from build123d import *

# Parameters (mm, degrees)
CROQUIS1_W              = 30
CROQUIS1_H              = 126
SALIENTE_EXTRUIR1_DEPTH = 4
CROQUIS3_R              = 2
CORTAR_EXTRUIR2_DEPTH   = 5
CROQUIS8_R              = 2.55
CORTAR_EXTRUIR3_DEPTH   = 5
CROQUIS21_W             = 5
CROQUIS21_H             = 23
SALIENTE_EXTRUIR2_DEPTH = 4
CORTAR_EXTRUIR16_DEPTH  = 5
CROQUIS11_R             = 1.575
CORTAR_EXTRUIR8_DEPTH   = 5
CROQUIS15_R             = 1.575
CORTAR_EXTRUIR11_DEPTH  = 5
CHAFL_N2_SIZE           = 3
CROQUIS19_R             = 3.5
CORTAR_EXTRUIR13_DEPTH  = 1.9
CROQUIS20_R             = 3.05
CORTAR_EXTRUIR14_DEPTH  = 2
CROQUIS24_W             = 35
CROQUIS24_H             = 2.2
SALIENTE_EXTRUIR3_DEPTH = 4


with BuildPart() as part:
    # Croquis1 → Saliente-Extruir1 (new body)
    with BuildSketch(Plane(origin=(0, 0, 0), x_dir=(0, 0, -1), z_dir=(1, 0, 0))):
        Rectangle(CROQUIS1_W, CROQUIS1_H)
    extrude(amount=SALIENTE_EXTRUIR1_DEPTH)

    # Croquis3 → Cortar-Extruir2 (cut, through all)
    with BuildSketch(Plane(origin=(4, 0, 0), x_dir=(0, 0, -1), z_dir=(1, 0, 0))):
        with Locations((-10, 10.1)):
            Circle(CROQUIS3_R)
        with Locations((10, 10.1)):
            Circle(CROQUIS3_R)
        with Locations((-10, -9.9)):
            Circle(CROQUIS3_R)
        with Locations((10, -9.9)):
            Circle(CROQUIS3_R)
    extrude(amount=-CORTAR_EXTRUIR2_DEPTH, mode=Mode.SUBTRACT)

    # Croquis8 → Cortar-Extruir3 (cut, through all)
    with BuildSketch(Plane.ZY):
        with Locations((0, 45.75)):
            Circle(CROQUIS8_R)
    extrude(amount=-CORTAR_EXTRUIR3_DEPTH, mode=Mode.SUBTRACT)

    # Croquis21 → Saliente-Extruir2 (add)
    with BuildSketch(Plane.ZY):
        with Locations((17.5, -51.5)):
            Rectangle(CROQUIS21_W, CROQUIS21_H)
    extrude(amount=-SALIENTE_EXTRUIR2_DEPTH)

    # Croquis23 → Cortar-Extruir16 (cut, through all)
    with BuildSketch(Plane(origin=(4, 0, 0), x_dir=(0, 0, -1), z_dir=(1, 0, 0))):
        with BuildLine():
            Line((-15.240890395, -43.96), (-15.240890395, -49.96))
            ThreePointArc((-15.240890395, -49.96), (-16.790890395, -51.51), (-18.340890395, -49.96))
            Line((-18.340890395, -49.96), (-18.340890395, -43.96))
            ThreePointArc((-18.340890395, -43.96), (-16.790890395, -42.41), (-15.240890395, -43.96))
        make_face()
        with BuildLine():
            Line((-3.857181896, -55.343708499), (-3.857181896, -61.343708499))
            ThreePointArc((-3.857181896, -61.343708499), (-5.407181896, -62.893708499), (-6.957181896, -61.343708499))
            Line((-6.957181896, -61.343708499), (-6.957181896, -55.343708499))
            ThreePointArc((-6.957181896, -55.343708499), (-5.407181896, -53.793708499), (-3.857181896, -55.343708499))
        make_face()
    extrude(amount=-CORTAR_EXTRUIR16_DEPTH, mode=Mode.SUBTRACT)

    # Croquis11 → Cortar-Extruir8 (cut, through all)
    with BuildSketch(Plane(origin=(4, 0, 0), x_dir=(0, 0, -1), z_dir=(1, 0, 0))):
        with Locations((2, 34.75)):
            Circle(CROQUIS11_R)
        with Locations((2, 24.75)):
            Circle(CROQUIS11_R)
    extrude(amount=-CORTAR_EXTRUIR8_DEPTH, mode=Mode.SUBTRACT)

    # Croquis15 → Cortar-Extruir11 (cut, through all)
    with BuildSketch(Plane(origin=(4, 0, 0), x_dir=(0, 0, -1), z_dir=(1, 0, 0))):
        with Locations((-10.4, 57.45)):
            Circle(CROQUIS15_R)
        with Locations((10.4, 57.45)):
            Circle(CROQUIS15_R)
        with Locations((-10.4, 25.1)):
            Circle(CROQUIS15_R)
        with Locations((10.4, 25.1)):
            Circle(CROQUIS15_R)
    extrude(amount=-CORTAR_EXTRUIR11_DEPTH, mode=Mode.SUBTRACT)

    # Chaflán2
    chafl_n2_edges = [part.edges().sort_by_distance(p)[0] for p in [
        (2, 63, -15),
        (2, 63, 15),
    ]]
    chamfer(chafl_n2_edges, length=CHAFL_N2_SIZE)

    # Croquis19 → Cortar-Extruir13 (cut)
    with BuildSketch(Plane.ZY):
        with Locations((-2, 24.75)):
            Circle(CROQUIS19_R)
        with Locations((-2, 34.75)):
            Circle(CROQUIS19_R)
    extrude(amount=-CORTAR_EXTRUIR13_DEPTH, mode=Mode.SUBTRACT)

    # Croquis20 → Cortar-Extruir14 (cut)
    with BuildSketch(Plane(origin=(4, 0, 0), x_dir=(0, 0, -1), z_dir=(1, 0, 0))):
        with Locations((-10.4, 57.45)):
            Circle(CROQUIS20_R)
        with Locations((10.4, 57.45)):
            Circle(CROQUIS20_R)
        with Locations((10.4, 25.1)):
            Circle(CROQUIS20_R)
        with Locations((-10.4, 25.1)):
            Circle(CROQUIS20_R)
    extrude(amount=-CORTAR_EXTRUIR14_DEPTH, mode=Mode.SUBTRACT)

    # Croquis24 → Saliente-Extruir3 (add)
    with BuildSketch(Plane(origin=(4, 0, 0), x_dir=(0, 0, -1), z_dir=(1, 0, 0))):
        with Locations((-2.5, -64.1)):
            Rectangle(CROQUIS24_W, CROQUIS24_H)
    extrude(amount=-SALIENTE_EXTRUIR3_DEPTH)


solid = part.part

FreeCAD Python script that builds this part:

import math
import FreeCAD as App
import Part
import Sketcher

V = App.Vector


def edges_at(feature, points):
    """Names of the edges that pass closest to the given points."""
    edges = feature.Shape.Edges
    near = lambda p: min(range(len(edges)), key=lambda i: edges[i].distToShape(Part.Vertex(*p))[0])
    return sorted({f"Edge{near(p) + 1}" for p in points})

doc = App.newDocument("Part")
params = doc.addObject("Spreadsheet::Sheet", "Params")
for row, (alias, value) in enumerate([
    ("sketch1_width", "126 mm"),
    ("sketch1_height", "30 mm"),
    ("pad1_length", "4 mm"),
    ("sketch2_diameter", "4 mm"),
    ("sketch3_diameter", "5.1 mm"),
    ("sketch4_width", "23 mm"),
    ("sketch4_height", "5 mm"),
    ("pad2_length", "4 mm"),
    ("sketch5_width", "6 mm"),
    ("sketch5_radius", "1.55 mm"),
    ("sketch6_diameter", "3.15 mm"),
    ("sketch7_diameter", "3.15 mm"),
    ("chamfer_size", "3 mm"),
    ("sketch8_diameter", "7 mm"),
    ("pocket6_length", "1.9 mm"),
    ("sketch9_diameter", "6.1 mm"),
    ("pocket7_length", "2 mm"),
    ("sketch10_height", "35 mm"),
    ("sketch10_width", "2.2 mm"),
    ("pad3_length", "4 mm"),
], start=1):
    params.set(f"A{row}", alias)
    params.set(f"B{row}", "=" + value)
    params.setAlias(f"B{row}", alias)

body = doc.addObject("PartDesign::Body", "Body")

sketch1 = body.newObject("Sketcher::SketchObject", "Sketch")
sketch1.AttachmentSupport = (doc.getObject("YZ_Plane"), [""])
sketch1.MapMode = "FlatFace"
sketch1.addGeometry(Part.LineSegment(V(63, 15, 0), V(-63, 15, 0)), False)
sketch1.addGeometry(Part.LineSegment(V(-63, 15, 0), V(-63, -15, 0)), False)
sketch1.addGeometry(Part.LineSegment(V(-63, -15, 0), V(63, -15, 0)), False)
sketch1.addGeometry(Part.LineSegment(V(63, -15, 0), V(63, 15, 0)), False)
sketch1.addConstraint(Sketcher.Constraint("Coincident", 0, 2, 1, 1))
sketch1.addConstraint(Sketcher.Constraint("Coincident", 1, 2, 2, 1))
sketch1.addConstraint(Sketcher.Constraint("Coincident", 2, 2, 3, 1))
sketch1.addConstraint(Sketcher.Constraint("Coincident", 3, 2, 0, 1))
sketch1.addConstraint(Sketcher.Constraint("Horizontal", 0))
sketch1.addConstraint(Sketcher.Constraint("Vertical", 1))
sketch1.addConstraint(Sketcher.Constraint("Horizontal", 2))
sketch1.addConstraint(Sketcher.Constraint("Vertical", 3))
sketch1.addConstraint(Sketcher.Constraint("Symmetric", 0, 2, 2, 2, -1, 1))
sketch1.addConstraint(Sketcher.Constraint("DistanceX", 0, 2, 0, 1, 126.0))
sketch1.addConstraint(Sketcher.Constraint("DistanceY", 1, 2, 1, 1, 30.0))
sketch1.setExpression("Constraints[9]", "Params.sketch1_width")
sketch1.setExpression("Constraints[10]", "Params.sketch1_height")
pad1 = body.newObject("PartDesign::Pad", "Pad")
pad1.Profile = sketch1
pad1.setExpression("Length", "Params.pad1_length")

sketch2 = body.newObject("Sketcher::SketchObject", "Sketch001")
sketch2.AttachmentSupport = (doc.getObject("YZ_Plane"), [""])
sketch2.MapMode = "FlatFace"
sketch2.AttachmentOffset = App.Placement(V(0, 0, 4), App.Rotation())
sketch2.addGeometry(Part.Circle(V(10.1, 10, 0), V(0, 0, 1), 2), False)
sketch2.addGeometry(Part.Circle(V(10.1, -10, 0), V(0, 0, 1), 2), False)
sketch2.addGeometry(Part.Circle(V(-9.9, 10, 0), V(0, 0, 1), 2), False)
sketch2.addGeometry(Part.Circle(V(-9.9, -10, 0), V(0, 0, 1), 2), False)
sketch2.addConstraint(Sketcher.Constraint("Equal", 0, 1))
sketch2.addConstraint(Sketcher.Constraint("Equal", 1, 2))
sketch2.addConstraint(Sketcher.Constraint("Equal", 2, 3))
sketch2.addConstraint(Sketcher.Constraint("Symmetric", 0, 3, 1, 3, -1))
sketch2.addConstraint(Sketcher.Constraint("Symmetric", 2, 3, 3, 3, -1))
sketch2.addConstraint(Sketcher.Constraint("Horizontal", 0, 3, 2, 3))
sketch2.addConstraint(Sketcher.Constraint("Diameter", 0, 4.0))
sketch2.addConstraint(Sketcher.Constraint("DistanceY", -1, 1, 0, 3, 10.0))
sketch2.addConstraint(Sketcher.Constraint("DistanceX", 2, 3, 0, 3, 20.0))
sketch2.addConstraint(Sketcher.Constraint("DistanceX", -1, 1, 0, 3, 10.1))
sketch2.setExpression("Constraints[6]", "Params.sketch2_diameter")
pocket1 = body.newObject("PartDesign::Pocket", "Pocket")
pocket1.Profile = sketch2
pocket1.Type = "ThroughAll"

sketch3 = body.newObject("Sketcher::SketchObject", "Sketch002")
sketch3.AttachmentSupport = (doc.getObject("YZ_Plane"), [""])
sketch3.MapMode = "FlatFace"
sketch3.addGeometry(Part.Circle(V(45.8, 0, 0), V(0, 0, 1), 2.5), False)
sketch3.addConstraint(Sketcher.Constraint("PointOnObject", 0, 3, -1))
sketch3.addConstraint(Sketcher.Constraint("Diameter", 0, 5.1))
sketch3.addConstraint(Sketcher.Constraint("DistanceX", -1, 1, 0, 3, 45.75))
sketch3.setExpression("Constraints[1]", "Params.sketch3_diameter")
pocket2 = body.newObject("PartDesign::Pocket", "Pocket001")
pocket2.Profile = sketch3
pocket2.Type = "ThroughAll"
pocket2.Reversed = True

sketch4 = body.newObject("Sketcher::SketchObject", "Sketch003")
sketch4.AttachmentSupport = (doc.getObject("YZ_Plane"), [""])
sketch4.MapMode = "FlatFace"
sketch4.addGeometry(Part.LineSegment(V(-40, 15, 0), V(-63, 15, 0)), False)
sketch4.addGeometry(Part.LineSegment(V(-63, 15, 0), V(-63, 20, 0)), False)
sketch4.addGeometry(Part.LineSegment(V(-63, 20, 0), V(-40, 20, 0)), False)
sketch4.addGeometry(Part.LineSegment(V(-40, 20, 0), V(-40, 15, 0)), False)
sketch4.addConstraint(Sketcher.Constraint("Coincident", 0, 2, 1, 1))
sketch4.addConstraint(Sketcher.Constraint("Coincident", 1, 2, 2, 1))
sketch4.addConstraint(Sketcher.Constraint("Coincident", 2, 2, 3, 1))
sketch4.addConstraint(Sketcher.Constraint("Coincident", 3, 2, 0, 1))
sketch4.addConstraint(Sketcher.Constraint("Horizontal", 0))
sketch4.addConstraint(Sketcher.Constraint("Vertical", 1))
sketch4.addConstraint(Sketcher.Constraint("Horizontal", 2))
sketch4.addConstraint(Sketcher.Constraint("Vertical", 3))
sketch4.addConstraint(Sketcher.Constraint("DistanceX", 0, 2, 0, 1, 23.0))
sketch4.addConstraint(Sketcher.Constraint("DistanceY", 1, 1, 1, 2, 5.0))
sketch4.addConstraint(Sketcher.Constraint("DistanceX", 0, 2, -1, 1, 63.0))
sketch4.addConstraint(Sketcher.Constraint("DistanceY", -1, 1, 0, 2, 15.0))
sketch4.setExpression("Constraints[8]", "Params.sketch4_width")
sketch4.setExpression("Constraints[9]", "Params.sketch4_height")
pad2 = body.newObject("PartDesign::Pad", "Pad001")
pad2.Profile = sketch4
pad2.setExpression("Length", "Params.pad2_length")

sketch5 = body.newObject("Sketcher::SketchObject", "Sketch004")
sketch5.AttachmentSupport = (doc.getObject("YZ_Plane"), [""])
sketch5.MapMode = "FlatFace"
sketch5.AttachmentOffset = App.Placement(V(0, 0, 4), App.Rotation())
sketch5.addGeometry(Part.LineSegment(V(-50, 15.2, 0), V(-44, 15.2, 0)), False)
sketch5.addGeometry(Part.ArcOfCircle(Part.Circle(V(-44, 16.8, 0), V(0, 0, 1), 1.6), math.radians(-90), math.radians(90)), False)
sketch5.addGeometry(Part.LineSegment(V(-44, 18.3, 0), V(-50, 18.3, 0)), False)
sketch5.addGeometry(Part.ArcOfCircle(Part.Circle(V(-50, 16.8, 0), V(0, 0, 1), 1.6), math.radians(90), math.radians(270)), False)
sketch5.addGeometry(Part.LineSegment(V(-61.3, 3.9, 0), V(-55.3, 3.9, 0)), False)
sketch5.addGeometry(Part.ArcOfCircle(Part.Circle(V(-55.3, 5.4, 0), V(0, 0, 1), 1.6), math.radians(-90), math.radians(90)), False)
sketch5.addGeometry(Part.LineSegment(V(-55.3, 7, 0), V(-61.3, 7, 0)), False)
sketch5.addGeometry(Part.ArcOfCircle(Part.Circle(V(-61.3, 5.4, 0), V(0, 0, 1), 1.6), math.radians(90), math.radians(270)), False)
sketch5.addConstraint(Sketcher.Constraint("Tangent", 0, 2, 1, 1))
sketch5.addConstraint(Sketcher.Constraint("Tangent", 1, 2, 2, 1))
sketch5.addConstraint(Sketcher.Constraint("Tangent", 2, 2, 3, 1))
sketch5.addConstraint(Sketcher.Constraint("Tangent", 3, 2, 0, 1))
sketch5.addConstraint(Sketcher.Constraint("Tangent", 4, 2, 5, 1))
sketch5.addConstraint(Sketcher.Constraint("Tangent", 5, 2, 6, 1))
sketch5.addConstraint(Sketcher.Constraint("Tangent", 6, 2, 7, 1))
sketch5.addConstraint(Sketcher.Constraint("Tangent", 7, 2, 4, 1))
sketch5.addConstraint(Sketcher.Constraint("Horizontal", 0))
sketch5.addConstraint(Sketcher.Constraint("Horizontal", 2))
sketch5.addConstraint(Sketcher.Constraint("Horizontal", 4))
sketch5.addConstraint(Sketcher.Constraint("Horizontal", 6))
sketch5.addConstraint(Sketcher.Constraint("Equal", 3, 5))
sketch5.addConstraint(Sketcher.Constraint("Equal", 2, 4))
sketch5.addConstraint(Sketcher.Constraint("DistanceX", 0, 1, 0, 2, 6.0))
sketch5.addConstraint(Sketcher.Constraint("Radius", 1, 1.55))
sketch5.addConstraint(Sketcher.Constraint("DistanceX", 1, 3, -1, 1, 43.96))
sketch5.addConstraint(Sketcher.Constraint("DistanceY", -1, 1, 1, 3, 16.79089))
sketch5.addConstraint(Sketcher.Constraint("DistanceX", 5, 3, -1, 1, 55.343708))
sketch5.addConstraint(Sketcher.Constraint("DistanceY", -1, 1, 5, 3, 5.407182))
sketch5.setExpression("Constraints[14]", "Params.sketch5_width")
sketch5.setExpression("Constraints[15]", "Params.sketch5_radius")
pocket3 = body.newObject("PartDesign::Pocket", "Pocket002")
pocket3.Profile = sketch5
pocket3.Type = "ThroughAll"

sketch6 = body.newObject("Sketcher::SketchObject", "Sketch005")
sketch6.AttachmentSupport = (doc.getObject("YZ_Plane"), [""])
sketch6.MapMode = "FlatFace"
sketch6.AttachmentOffset = App.Placement(V(0, 0, 4), App.Rotation())
sketch6.addGeometry(Part.Circle(V(34.8, -2, 0), V(0, 0, 1), 1.6), False)
sketch6.addGeometry(Part.Circle(V(24.8, -2, 0), V(0, 0, 1), 1.6), False)
sketch6.addConstraint(Sketcher.Constraint("Equal", 0, 1))
sketch6.addConstraint(Sketcher.Constraint("Horizontal", 0, 3, 1, 3))
sketch6.addConstraint(Sketcher.Constraint("Diameter", 0, 3.15))
sketch6.addConstraint(Sketcher.Constraint("DistanceY", 0, 3, -1, 1, 2.0))
sketch6.addConstraint(Sketcher.Constraint("DistanceX", 1, 3, 0, 3, 10.0))
sketch6.addConstraint(Sketcher.Constraint("DistanceX", -1, 1, 0, 3, 34.75))
sketch6.setExpression("Constraints[2]", "Params.sketch6_diameter")
pocket4 = body.newObject("PartDesign::Pocket", "Pocket003")
pocket4.Profile = sketch6
pocket4.Type = "ThroughAll"

sketch7 = body.newObject("Sketcher::SketchObject", "Sketch006")
sketch7.AttachmentSupport = (doc.getObject("YZ_Plane"), [""])
sketch7.MapMode = "FlatFace"
sketch7.AttachmentOffset = App.Placement(V(0, 0, 4), App.Rotation())
sketch7.addGeometry(Part.Circle(V(57.5, 10.4, 0), V(0, 0, 1), 1.6), False)
sketch7.addGeometry(Part.Circle(V(57.5, -10.4, 0), V(0, 0, 1), 1.6), False)
sketch7.addGeometry(Part.Circle(V(25.1, 10.4, 0), V(0, 0, 1), 1.6), False)
sketch7.addGeometry(Part.Circle(V(25.1, -10.4, 0), V(0, 0, 1), 1.6), False)
sketch7.addConstraint(Sketcher.Constraint("Equal", 0, 1))
sketch7.addConstraint(Sketcher.Constraint("Equal", 1, 2))
sketch7.addConstraint(Sketcher.Constraint("Equal", 2, 3))
sketch7.addConstraint(Sketcher.Constraint("Symmetric", 0, 3, 1, 3, -1))
sketch7.addConstraint(Sketcher.Constraint("Symmetric", 2, 3, 3, 3, -1))
sketch7.addConstraint(Sketcher.Constraint("Horizontal", 0, 3, 2, 3))
sketch7.addConstraint(Sketcher.Constraint("Diameter", 0, 3.15))
sketch7.addConstraint(Sketcher.Constraint("DistanceY", -1, 1, 0, 3, 10.4))
sketch7.addConstraint(Sketcher.Constraint("DistanceX", -1, 1, 2, 3, 25.1))
sketch7.addConstraint(Sketcher.Constraint("DistanceX", -1, 1, 0, 3, 57.45))
sketch7.setExpression("Constraints[6]", "Params.sketch7_diameter")
pocket5 = body.newObject("PartDesign::Pocket", "Pocket004")
pocket5.Profile = sketch7
pocket5.Type = "ThroughAll"
doc.recompute()

chamfer = body.newObject("PartDesign::Chamfer", "Chamfer")
chamfer.Base = (pocket5, edges_at(pocket5, [(2, 63, -15), (2, 63, 15)]))
chamfer.setExpression("Size", "Params.chamfer_size")

sketch8 = body.newObject("Sketcher::SketchObject", "Sketch007")
sketch8.AttachmentSupport = (doc.getObject("YZ_Plane"), [""])
sketch8.MapMode = "FlatFace"
sketch8.addGeometry(Part.Circle(V(24.8, -2, 0), V(0, 0, 1), 3.5), False)
sketch8.addGeometry(Part.Circle(V(34.8, -2, 0), V(0, 0, 1), 3.5), False)
sketch8.addConstraint(Sketcher.Constraint("Equal", 0, 1))
sketch8.addConstraint(Sketcher.Constraint("Horizontal", 0, 3, 1, 3))
sketch8.addConstraint(Sketcher.Constraint("Diameter", 0, 7.0))
sketch8.addConstraint(Sketcher.Constraint("DistanceY", 0, 3, -1, 1, 2.0))
sketch8.addConstraint(Sketcher.Constraint("DistanceX", 0, 3, 1, 3, 10.0))
sketch8.addConstraint(Sketcher.Constraint("DistanceX", -1, 1, 0, 3, 24.75))
sketch8.setExpression("Constraints[2]", "Params.sketch8_diameter")
pocket6 = body.newObject("PartDesign::Pocket", "Pocket005")
pocket6.Profile = sketch8
pocket6.setExpression("Length", "Params.pocket6_length")
pocket6.Reversed = True

sketch9 = body.newObject("Sketcher::SketchObject", "Sketch008")
sketch9.AttachmentSupport = (doc.getObject("YZ_Plane"), [""])
sketch9.MapMode = "FlatFace"
sketch9.AttachmentOffset = App.Placement(V(0, 0, 4), App.Rotation())
sketch9.addGeometry(Part.Circle(V(57.5, 10.4, 0), V(0, 0, 1), 3), False)
sketch9.addGeometry(Part.Circle(V(57.5, -10.4, 0), V(0, 0, 1), 3), False)
sketch9.addGeometry(Part.Circle(V(25.1, -10.4, 0), V(0, 0, 1), 3), False)
sketch9.addGeometry(Part.Circle(V(25.1, 10.4, 0), V(0, 0, 1), 3), False)
sketch9.addConstraint(Sketcher.Constraint("Equal", 0, 1))
sketch9.addConstraint(Sketcher.Constraint("Equal", 1, 2))
sketch9.addConstraint(Sketcher.Constraint("Equal", 2, 3))
sketch9.addConstraint(Sketcher.Constraint("Symmetric", 0, 3, 1, 3, -1))
sketch9.addConstraint(Sketcher.Constraint("Symmetric", 2, 3, 3, 3, -1))
sketch9.addConstraint(Sketcher.Constraint("Horizontal", 1, 3, 2, 3))
sketch9.addConstraint(Sketcher.Constraint("Diameter", 0, 6.1))
sketch9.addConstraint(Sketcher.Constraint("DistanceY", -1, 1, 0, 3, 10.4))
sketch9.addConstraint(Sketcher.Constraint("DistanceX", -1, 1, 2, 3, 25.1))
sketch9.addConstraint(Sketcher.Constraint("DistanceX", -1, 1, 0, 3, 57.45))
sketch9.setExpression("Constraints[6]", "Params.sketch9_diameter")
pocket7 = body.newObject("PartDesign::Pocket", "Pocket006")
pocket7.Profile = sketch9
pocket7.setExpression("Length", "Params.pocket7_length")

sketch10 = body.newObject("Sketcher::SketchObject", "Sketch009")
sketch10.AttachmentSupport = (doc.getObject("YZ_Plane"), [""])
sketch10.MapMode = "FlatFace"
sketch10.AttachmentOffset = App.Placement(V(0, 0, 4), App.Rotation())
sketch10.addGeometry(Part.LineSegment(V(-63, 20, 0), V(-65.2, 20, 0)), False)
sketch10.addGeometry(Part.LineSegment(V(-65.2, 20, 0), V(-65.2, -15, 0)), False)
sketch10.addGeometry(Part.LineSegment(V(-65.2, -15, 0), V(-63, -15, 0)), False)
sketch10.addGeometry(Part.LineSegment(V(-63, -15, 0), V(-63, 20, 0)), False)
sketch10.addConstraint(Sketcher.Constraint("Coincident", 0, 2, 1, 1))
sketch10.addConstraint(Sketcher.Constraint("Coincident", 1, 2, 2, 1))
sketch10.addConstraint(Sketcher.Constraint("Coincident", 2, 2, 3, 1))
sketch10.addConstraint(Sketcher.Constraint("Coincident", 3, 2, 0, 1))
sketch10.addConstraint(Sketcher.Constraint("Horizontal", 0))
sketch10.addConstraint(Sketcher.Constraint("Vertical", 1))
sketch10.addConstraint(Sketcher.Constraint("Horizontal", 2))
sketch10.addConstraint(Sketcher.Constraint("Vertical", 3))
sketch10.addConstraint(Sketcher.Constraint("DistanceY", 1, 2, 1, 1, 35.0))
sketch10.addConstraint(Sketcher.Constraint("DistanceX", 0, 2, 0, 1, 2.2))
sketch10.addConstraint(Sketcher.Constraint("DistanceY", -1, 1, 0, 2, 20.0))
sketch10.addConstraint(Sketcher.Constraint("DistanceX", 2, 2, -1, 1, 63.0))
sketch10.setExpression("Constraints[8]", "Params.sketch10_height")
sketch10.setExpression("Constraints[9]", "Params.sketch10_width")
pad3 = body.newObject("PartDesign::Pad", "Pad002")
pad3.Profile = sketch10
pad3.setExpression("Length", "Params.pad3_length")
pad3.Reversed = True

doc.recompute()
